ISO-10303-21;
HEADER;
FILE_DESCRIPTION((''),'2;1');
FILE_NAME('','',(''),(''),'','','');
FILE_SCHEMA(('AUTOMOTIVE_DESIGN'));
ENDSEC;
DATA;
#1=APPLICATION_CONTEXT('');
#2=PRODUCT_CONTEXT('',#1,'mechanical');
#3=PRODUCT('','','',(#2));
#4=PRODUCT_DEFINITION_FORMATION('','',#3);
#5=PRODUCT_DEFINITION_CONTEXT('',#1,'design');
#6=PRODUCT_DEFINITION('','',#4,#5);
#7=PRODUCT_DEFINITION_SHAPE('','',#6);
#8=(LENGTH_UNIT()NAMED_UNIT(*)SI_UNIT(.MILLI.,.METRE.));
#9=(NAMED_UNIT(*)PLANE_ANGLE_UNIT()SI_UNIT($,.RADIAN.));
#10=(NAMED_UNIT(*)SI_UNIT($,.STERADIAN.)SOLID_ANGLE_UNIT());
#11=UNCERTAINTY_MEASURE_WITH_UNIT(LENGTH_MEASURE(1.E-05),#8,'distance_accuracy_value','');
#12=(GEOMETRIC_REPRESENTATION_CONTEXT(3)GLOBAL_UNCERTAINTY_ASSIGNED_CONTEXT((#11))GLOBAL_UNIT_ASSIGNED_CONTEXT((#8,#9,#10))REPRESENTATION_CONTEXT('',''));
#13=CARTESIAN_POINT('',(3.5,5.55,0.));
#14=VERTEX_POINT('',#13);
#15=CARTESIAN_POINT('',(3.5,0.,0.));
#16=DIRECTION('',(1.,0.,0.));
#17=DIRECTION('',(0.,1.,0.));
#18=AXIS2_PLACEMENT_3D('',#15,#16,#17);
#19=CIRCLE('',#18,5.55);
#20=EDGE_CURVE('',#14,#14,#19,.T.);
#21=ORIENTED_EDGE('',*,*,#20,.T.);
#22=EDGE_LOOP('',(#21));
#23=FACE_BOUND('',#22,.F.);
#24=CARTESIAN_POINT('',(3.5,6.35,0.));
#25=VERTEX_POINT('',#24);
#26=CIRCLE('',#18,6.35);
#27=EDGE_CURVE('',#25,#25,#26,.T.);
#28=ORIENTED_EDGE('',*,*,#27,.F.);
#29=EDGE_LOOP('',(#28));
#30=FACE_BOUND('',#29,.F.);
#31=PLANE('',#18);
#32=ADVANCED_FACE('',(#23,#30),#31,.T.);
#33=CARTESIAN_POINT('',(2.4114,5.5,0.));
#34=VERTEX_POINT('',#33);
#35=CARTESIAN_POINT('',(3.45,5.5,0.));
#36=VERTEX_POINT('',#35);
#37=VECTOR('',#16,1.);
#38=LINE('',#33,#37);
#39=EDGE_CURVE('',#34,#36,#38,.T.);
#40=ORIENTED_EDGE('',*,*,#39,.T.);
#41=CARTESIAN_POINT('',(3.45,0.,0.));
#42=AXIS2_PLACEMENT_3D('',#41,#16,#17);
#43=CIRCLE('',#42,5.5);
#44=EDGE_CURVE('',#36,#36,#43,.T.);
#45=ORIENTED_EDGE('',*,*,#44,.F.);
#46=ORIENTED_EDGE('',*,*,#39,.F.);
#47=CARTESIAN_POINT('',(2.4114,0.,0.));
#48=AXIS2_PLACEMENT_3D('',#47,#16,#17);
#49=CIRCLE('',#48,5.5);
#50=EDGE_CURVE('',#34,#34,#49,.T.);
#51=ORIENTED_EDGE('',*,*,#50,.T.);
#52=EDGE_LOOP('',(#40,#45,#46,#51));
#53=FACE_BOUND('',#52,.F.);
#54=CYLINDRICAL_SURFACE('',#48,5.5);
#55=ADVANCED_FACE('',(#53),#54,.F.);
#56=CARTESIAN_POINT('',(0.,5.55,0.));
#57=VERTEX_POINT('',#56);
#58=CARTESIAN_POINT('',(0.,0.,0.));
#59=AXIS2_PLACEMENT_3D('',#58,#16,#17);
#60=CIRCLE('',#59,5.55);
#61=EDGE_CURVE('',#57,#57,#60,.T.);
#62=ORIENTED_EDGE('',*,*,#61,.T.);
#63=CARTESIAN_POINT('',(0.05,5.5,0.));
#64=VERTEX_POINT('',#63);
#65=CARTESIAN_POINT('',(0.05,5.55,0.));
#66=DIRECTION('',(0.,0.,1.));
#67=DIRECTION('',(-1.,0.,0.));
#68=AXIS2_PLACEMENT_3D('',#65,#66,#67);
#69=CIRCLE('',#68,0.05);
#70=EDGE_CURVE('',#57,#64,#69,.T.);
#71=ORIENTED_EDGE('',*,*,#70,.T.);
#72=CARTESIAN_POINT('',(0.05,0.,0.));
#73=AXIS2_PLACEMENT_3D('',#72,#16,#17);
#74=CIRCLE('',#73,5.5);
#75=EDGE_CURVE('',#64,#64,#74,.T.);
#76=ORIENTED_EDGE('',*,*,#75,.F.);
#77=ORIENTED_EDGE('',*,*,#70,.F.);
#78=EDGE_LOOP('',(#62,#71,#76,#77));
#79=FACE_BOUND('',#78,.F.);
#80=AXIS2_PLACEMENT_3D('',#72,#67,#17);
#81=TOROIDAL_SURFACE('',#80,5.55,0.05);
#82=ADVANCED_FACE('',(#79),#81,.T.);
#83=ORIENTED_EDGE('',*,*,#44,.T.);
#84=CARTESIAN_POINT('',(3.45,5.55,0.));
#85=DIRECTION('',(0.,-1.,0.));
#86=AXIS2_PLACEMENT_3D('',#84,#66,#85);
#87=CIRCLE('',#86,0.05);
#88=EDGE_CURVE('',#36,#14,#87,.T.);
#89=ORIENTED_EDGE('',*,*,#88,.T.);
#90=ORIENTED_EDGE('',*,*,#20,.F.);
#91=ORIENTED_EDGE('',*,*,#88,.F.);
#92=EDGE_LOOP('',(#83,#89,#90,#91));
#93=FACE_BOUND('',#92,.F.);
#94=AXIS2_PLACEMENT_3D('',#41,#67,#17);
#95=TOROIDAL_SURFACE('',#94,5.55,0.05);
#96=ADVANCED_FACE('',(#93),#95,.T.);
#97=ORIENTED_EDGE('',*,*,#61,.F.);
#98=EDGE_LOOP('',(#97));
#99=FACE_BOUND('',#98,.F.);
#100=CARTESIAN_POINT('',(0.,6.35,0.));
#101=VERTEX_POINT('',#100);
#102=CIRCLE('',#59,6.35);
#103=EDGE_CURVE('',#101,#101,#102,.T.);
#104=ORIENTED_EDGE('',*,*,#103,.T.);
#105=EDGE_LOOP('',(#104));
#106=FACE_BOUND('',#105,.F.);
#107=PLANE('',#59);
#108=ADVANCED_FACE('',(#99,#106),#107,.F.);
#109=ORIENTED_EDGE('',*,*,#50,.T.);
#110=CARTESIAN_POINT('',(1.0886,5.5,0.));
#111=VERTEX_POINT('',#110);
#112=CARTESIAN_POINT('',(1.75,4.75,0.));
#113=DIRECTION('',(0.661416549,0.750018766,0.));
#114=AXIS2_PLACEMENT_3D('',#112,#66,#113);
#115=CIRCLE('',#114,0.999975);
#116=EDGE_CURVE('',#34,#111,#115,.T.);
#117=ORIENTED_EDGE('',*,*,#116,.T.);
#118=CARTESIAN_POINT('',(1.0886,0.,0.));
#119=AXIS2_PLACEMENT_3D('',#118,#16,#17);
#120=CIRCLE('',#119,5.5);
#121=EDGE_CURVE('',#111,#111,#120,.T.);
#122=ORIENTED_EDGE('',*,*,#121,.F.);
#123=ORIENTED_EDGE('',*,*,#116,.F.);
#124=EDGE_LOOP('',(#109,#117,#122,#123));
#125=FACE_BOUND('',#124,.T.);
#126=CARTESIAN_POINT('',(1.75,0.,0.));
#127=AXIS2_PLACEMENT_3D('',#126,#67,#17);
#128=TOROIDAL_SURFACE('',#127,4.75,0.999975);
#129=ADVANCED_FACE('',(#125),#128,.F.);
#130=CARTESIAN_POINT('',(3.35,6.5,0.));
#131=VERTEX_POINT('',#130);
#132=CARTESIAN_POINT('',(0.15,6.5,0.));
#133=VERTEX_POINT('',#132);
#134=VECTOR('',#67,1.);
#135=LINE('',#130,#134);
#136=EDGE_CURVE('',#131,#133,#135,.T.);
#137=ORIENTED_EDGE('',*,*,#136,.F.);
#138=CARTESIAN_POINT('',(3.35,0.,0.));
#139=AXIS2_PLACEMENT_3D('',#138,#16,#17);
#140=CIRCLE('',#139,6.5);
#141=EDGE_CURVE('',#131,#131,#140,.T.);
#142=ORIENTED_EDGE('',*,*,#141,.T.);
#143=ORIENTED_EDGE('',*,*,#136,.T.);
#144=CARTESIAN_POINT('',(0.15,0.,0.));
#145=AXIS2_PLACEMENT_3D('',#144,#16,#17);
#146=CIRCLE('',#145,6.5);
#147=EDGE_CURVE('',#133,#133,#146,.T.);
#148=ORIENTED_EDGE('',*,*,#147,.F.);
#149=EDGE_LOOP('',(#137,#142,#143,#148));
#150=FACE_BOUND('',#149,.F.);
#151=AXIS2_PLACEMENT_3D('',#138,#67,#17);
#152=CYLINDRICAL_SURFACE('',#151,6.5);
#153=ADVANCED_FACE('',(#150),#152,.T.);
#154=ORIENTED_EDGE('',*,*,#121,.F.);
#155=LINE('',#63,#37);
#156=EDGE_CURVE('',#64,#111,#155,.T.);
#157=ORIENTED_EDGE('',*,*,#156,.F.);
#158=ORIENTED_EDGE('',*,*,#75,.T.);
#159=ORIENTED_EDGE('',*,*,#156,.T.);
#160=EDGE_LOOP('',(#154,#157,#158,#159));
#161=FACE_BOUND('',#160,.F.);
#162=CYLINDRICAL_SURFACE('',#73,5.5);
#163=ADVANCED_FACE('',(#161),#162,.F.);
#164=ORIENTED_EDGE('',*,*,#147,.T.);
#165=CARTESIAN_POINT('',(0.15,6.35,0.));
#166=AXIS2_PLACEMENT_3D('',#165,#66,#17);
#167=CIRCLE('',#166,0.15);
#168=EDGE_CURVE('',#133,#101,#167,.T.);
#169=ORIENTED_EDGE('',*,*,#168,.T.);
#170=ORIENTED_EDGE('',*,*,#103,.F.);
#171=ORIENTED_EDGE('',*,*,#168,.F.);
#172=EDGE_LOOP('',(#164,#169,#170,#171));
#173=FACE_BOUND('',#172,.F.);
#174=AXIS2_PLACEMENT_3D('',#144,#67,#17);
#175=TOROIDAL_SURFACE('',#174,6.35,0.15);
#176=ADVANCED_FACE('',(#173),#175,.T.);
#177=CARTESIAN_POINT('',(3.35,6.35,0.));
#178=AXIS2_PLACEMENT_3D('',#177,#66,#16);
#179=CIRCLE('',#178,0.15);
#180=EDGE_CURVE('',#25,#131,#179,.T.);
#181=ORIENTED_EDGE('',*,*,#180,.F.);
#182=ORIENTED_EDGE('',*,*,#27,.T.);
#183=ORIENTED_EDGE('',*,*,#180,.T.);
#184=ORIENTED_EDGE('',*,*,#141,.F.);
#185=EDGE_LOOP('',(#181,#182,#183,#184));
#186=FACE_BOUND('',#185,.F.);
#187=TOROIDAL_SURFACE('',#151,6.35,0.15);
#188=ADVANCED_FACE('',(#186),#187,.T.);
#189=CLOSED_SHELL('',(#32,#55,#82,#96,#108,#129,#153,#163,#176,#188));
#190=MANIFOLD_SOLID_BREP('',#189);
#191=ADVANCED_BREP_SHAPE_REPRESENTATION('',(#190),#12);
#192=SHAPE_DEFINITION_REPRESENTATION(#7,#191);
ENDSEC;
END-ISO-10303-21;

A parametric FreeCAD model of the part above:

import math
import FreeCAD as App
import Part
import Sketcher

doc = App.newDocument("Part")
body = doc.addObject("PartDesign::Body", "Body")

# Sketch on XY plane
sketch1 = doc.addObject("Sketcher::SketchObject", "Sketch")
body.addObject(sketch1)
sketch1.AttachmentSupport = (doc.XY_Plane, [""])
sketch1.MapMode = "FlatFace"
sketch1.addGeometry([
    Part.ArcOfCircle(Part.Circle(App.Vector(0.15, 6.35, 0), App.Vector(0, 0, 1), 0.15), math.radians(90), math.radians(180)),  # 0
    Part.LineSegment(App.Vector(0, 6.35, 0), App.Vector(0, 5.55, 0)),  # 1
    Part.ArcOfCircle(Part.Circle(App.Vector(0.05, 5.55, 0), App.Vector(0, 0, 1), 0.05), math.radians(180), math.radians(270)),  # 2
    Part.LineSegment(App.Vector(0.05, 5.5, 0), App.Vector(1.089, 5.5, 0)),  # 3
    Part.ArcOfCircle(Part.Circle(App.Vector(1.75, 4.75, 0), App.Vector(0, 0, 1), 1), math.radians(49), math.radians(131)),  # 4
    Part.LineSegment(App.Vector(2.411, 5.5, 0), App.Vector(3.45, 5.5, 0)),  # 5
    Part.ArcOfCircle(Part.Circle(App.Vector(3.45, 5.55, 0), App.Vector(0, 0, 1), 0.05), math.radians(-90), math.radians(0)),  # 6
    Part.LineSegment(App.Vector(3.5, 5.55, 0), App.Vector(3.5, 6.35, 0)),  # 7
    Part.ArcOfCircle(Part.Circle(App.Vector(3.35, 6.35, 0), App.Vector(0, 0, 1), 0.15), math.radians(0), math.radians(90)),  # 8
    Part.LineSegment(App.Vector(3.35, 6.5, 0), App.Vector(0.15, 6.5, 0)),  # 9
], False)
sketch1.addConstraint([
    Sketcher.Constraint("Tangent", 0, 2, 1, 1),
    Sketcher.Constraint("Tangent", 1, 2, 2, 1),
    Sketcher.Constraint("Tangent", 2, 2, 3, 1),
    Sketcher.Constraint("Coincident", 3, 2, 4, 2),
    Sketcher.Constraint("Coincident", 4, 1, 5, 1),
    Sketcher.Constraint("Tangent", 5, 2, 6, 1),
    Sketcher.Constraint("Tangent", 6, 2, 7, 1),
    Sketcher.Constraint("Tangent", 7, 2, 8, 1),
    Sketcher.Constraint("Tangent", 8, 2, 9, 1),
    Sketcher.Constraint("Tangent", 9, 2, 0, 1),
    Sketcher.Constraint("Vertical", 1),
    Sketcher.Constraint("Horizontal", 3),
    Sketcher.Constraint("Horizontal", 5),
    Sketcher.Constraint("Vertical", 7),
    Sketcher.Constraint("Horizontal", 9),
    Sketcher.Constraint("Equal", 2, 6),
    Sketcher.Constraint("Equal", 0, 8),
    Sketcher.Constraint("PointOnObject", 0, 2, -2),
    Sketcher.Constraint("Horizontal", 2, 3, 6, 3),
    Sketcher.Constraint("Equal", 3, 5),
    Sketcher.Constraint("Radius", 4, 1.0),
    Sketcher.Constraint("Radius", 0, 0.15),
    Sketcher.Constraint("Radius", 2, 0.05),
    Sketcher.Constraint("DistanceX", 9, 2, 9, 1, 3.2),
    Sketcher.Constraint("DistanceY", 1, 2, 1, 1, 0.8),
    Sketcher.Constraint("DistanceY", -1, 1, 2, 2, 5.5),
    Sketcher.Constraint("DistanceY", 4, 3, 2, 3, 0.8),
])
revolution = doc.addObject("PartDesign::Revolution", "Revolution")
body.addObject(revolution)
revolution.Profile = sketch1
revolution.ReferenceAxis = (sketch1, ["H_Axis"])
revolution.Angle = 360

doc.recompute()
